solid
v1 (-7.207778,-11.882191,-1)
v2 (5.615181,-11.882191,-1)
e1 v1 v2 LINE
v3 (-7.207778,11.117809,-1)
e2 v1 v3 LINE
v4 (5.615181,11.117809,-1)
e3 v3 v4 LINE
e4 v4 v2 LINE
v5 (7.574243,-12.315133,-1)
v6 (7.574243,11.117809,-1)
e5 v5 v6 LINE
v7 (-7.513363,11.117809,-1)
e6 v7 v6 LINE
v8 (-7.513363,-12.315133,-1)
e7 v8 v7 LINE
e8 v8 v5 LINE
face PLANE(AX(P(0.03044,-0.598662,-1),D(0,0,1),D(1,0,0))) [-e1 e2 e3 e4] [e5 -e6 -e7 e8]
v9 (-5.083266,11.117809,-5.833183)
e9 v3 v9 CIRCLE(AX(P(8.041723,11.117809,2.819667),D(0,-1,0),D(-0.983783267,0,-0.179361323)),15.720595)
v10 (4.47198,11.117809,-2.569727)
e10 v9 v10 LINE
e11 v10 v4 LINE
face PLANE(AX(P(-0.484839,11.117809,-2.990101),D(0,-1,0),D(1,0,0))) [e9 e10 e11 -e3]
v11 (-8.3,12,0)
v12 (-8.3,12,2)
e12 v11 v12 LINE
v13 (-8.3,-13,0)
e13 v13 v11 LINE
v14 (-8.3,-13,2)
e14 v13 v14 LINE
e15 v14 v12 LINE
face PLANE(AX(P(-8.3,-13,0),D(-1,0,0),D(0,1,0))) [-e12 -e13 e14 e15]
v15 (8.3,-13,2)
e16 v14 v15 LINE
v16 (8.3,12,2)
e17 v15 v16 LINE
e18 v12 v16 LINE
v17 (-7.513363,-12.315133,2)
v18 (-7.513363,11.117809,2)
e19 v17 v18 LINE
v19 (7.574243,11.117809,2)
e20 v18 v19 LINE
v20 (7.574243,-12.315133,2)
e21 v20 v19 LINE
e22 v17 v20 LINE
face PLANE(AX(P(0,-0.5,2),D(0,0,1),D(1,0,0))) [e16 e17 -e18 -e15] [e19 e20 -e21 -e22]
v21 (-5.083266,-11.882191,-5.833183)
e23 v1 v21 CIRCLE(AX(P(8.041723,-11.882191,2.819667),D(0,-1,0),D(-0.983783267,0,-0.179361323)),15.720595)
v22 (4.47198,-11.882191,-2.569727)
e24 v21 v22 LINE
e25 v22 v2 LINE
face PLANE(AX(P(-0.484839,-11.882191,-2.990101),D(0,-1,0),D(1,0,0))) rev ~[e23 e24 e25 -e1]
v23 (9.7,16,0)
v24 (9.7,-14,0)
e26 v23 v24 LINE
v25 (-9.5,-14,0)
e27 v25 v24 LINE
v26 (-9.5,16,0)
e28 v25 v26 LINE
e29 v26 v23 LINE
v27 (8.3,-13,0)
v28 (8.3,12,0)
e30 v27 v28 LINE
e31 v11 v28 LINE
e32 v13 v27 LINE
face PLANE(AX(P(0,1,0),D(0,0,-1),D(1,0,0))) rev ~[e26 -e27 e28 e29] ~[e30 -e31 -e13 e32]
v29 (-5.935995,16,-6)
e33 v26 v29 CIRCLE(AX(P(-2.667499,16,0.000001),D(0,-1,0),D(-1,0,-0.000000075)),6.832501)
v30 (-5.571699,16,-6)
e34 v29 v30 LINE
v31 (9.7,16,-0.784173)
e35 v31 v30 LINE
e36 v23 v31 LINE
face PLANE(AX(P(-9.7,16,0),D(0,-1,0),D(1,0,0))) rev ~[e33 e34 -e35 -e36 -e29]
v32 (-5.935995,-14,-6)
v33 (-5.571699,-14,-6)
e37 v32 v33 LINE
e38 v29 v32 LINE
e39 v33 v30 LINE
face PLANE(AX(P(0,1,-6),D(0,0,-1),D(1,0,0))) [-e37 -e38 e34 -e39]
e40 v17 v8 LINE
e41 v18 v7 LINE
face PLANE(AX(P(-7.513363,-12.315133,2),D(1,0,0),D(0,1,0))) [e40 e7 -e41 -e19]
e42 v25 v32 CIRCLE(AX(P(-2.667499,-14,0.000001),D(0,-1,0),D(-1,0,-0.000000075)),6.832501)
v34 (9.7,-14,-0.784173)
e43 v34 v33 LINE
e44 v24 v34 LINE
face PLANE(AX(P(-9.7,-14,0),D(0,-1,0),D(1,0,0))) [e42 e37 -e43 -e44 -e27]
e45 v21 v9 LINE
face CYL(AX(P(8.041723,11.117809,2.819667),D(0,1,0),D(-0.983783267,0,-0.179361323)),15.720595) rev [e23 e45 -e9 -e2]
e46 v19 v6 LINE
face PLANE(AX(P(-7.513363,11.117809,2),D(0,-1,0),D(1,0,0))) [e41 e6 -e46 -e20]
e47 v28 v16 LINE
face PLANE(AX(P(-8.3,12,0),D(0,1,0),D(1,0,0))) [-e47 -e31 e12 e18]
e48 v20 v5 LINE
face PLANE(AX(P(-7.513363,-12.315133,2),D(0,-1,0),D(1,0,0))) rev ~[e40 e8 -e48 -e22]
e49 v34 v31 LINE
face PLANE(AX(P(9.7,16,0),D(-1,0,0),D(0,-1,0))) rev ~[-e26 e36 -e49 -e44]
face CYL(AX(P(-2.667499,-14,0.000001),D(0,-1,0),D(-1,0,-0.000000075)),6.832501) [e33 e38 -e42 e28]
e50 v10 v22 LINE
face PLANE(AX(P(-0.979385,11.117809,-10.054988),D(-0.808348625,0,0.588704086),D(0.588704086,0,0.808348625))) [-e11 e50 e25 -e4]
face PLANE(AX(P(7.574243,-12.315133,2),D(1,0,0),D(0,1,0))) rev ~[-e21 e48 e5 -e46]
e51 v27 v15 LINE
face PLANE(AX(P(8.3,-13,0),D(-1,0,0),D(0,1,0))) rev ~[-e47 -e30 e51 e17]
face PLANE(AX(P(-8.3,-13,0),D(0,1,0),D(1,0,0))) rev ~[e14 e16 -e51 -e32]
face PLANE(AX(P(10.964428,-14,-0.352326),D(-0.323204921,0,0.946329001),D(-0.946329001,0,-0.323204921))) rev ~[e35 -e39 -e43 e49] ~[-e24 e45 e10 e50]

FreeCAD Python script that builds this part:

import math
import FreeCAD as App
import Part
import Sketcher

V = App.Vector
Q = App.Units.Quantity


def add_polygon(sketch, points):
    """Adds a closed chain of lines whose ends are joined by coincident constraints."""
    first, n = sketch.GeometryCount, len(points)
    for a, b in zip(points, points[1:] + points[:1]):
        sketch.addGeometry(Part.LineSegment(App.Vector(*a, 0), App.Vector(*b, 0)), False)
    for i in range(n):
        sketch.addConstraint(Sketcher.Constraint("Coincident", first + i, 2, first + (i + 1) % n, 1))

doc = App.newDocument("Part")
body = doc.addObject("PartDesign::Body", "Body")

# Sketch on XY plane
sketch1 = body.newObject("Sketcher::SketchObject", "Sketch")
sketch1.AttachmentSupport = (doc.getObject("XY_Plane"), [""])
sketch1.MapMode = "FlatFace"
add_polygon(sketch1, [(-8.3, 12), (-8.3, -13), (8.3, -13), (8.3, 12)])  # lines 0-3
sketch1.addConstraint([
    Sketcher.Constraint("Vertical", 0),
    Sketcher.Constraint("Horizontal", 1),
    Sketcher.Constraint("Vertical", 2),
    Sketcher.Constraint("Horizontal", 3),
    Sketcher.Constraint("DistanceY", 0, 2, 0, 1, Q("25 mm")),
    Sketcher.Constraint("DistanceX", 1, 1, 1, 2, Q("16.6 mm")),
    Sketcher.Constraint("DistanceY", 0, 2, -1, 1, Q("13 mm")),
    Sketcher.Constraint("DistanceX", 0, 2, -1, 1, Q("8.3 mm")),
])
pad1 = body.newObject("PartDesign::Pad", "Pad")
pad1.Profile = sketch1
pad1.Length = 2

# Sketch on XY plane
sketch2 = body.newObject("Sketcher::SketchObject", "Sketch001")
sketch2.AttachmentSupport = (doc.getObject("XY_Plane"), [""])
sketch2.MapMode = "FlatFace"
add_polygon(sketch2, [(-9.7, -14), (-9.7, 16), (9.7, 16), (9.7, -14)])  # lines 0-3
sketch2.addConstraint([
    Sketcher.Constraint("Vertical", 0),
    Sketcher.Constraint("Horizontal", 1),
    Sketcher.Constraint("Vertical", 2),
    Sketcher.Constraint("Horizontal", 3),
    Sketcher.Constraint("DistanceY", 0, 1, 0, 2, Q("30 mm")),
    Sketcher.Constraint("DistanceX", 1, 1, 1, 2, Q("19.4 mm")),
    Sketcher.Constraint("DistanceY", -1, 1, 0, 2, Q("16 mm")),
    Sketcher.Constraint("DistanceX", 0, 2, -1, 1, Q("9.7 mm")),
])
pad2 = body.newObject("PartDesign::Pad", "Pad001")
pad2.Profile = sketch2
pad2.Length = 6
pad2.Reversed = True

# Sketch on XZ plane
sketch3 = body.newObject("Sketcher::SketchObject", "Sketch002")
sketch3.AttachmentSupport = (doc.getObject("XZ_Plane"), [""])
sketch3.MapMode = "FlatFace"
sketch3.AttachmentOffset = App.Placement(V(0, 0, 14), App.Rotation())
sketch3.addGeometry([
    Part.ArcOfCircle(Part.Circle(V(-2.667499, 0.000001, 0), V(0, 0, 1), 6.832501), math.radians(-179.999996), math.radians(-117.223895)),  # 0
    Part.LineSegment(V(-9.5, 0, 0), V(-9.5, 2.985816, 0)),  # 1
    Part.LineSegment(V(-9.5, 2.985816, 0), V(-15.284175, -12.512696, 0)),  # 2
    Part.LineSegment(V(-15.284175, -12.512696, 0), V(10.392425, -13.720259, 0)),  # 3
    Part.LineSegment(V(10.392425, -13.720259, 0), V(10.964428, -0.352326, 0)),  # 4
    Part.LineSegment(V(10.964428, -0.352326, 0), V(-5.793155, -6.075635, 0)),  # 5
], False)
sketch3.addConstraint([
    Sketcher.Constraint("Tangent", 0, 1, 1, 1),
    Sketcher.Constraint("Coincident", 1, 2, 2, 1),
    Sketcher.Constraint("Coincident", 2, 2, 3, 1),
    Sketcher.Constraint("Coincident", 3, 2, 4, 1),
    Sketcher.Constraint("Coincident", 4, 2, 5, 1),
    Sketcher.Constraint("Coincident", 5, 2, 0, 2),
    Sketcher.Constraint("Vertical", 1),
    Sketcher.Constraint("PointOnObject", 0, 3, -1),
    Sketcher.Constraint("DistanceX", 0, 1, -1, 1, Q("9.5 mm")),
    Sketcher.Constraint("Radius", 0, Q("6.832501 mm")),
    Sketcher.Constraint("DistanceX", 2, 2, 3, 2, Q("25.6766 mm")),
    Sketcher.Constraint("Distance", 2, Q("16.542689 mm")),
    Sketcher.Constraint("Distance", 3, Q("25.70498 mm")),
    Sketcher.Constraint("Distance", 5, Q("17.707988 mm")),
    Sketcher.Constraint("DistanceY", 1, 1, 1, 2, Q("2.985816 mm")),
    Sketcher.Constraint("DistanceY", 3, 2, -1, 1, Q("13.720259 mm")),
    Sketcher.Constraint("DistanceY", 4, 2, 1, 2, Q("3.338142 mm")),
    Sketcher.Constraint("DistanceY", 5, 2, 1, 2, Q("9.061451 mm")),
])
pocket1 = body.newObject("PartDesign::Pocket", "Pocket")
pocket1.Profile = sketch3
pocket1.Type = "ThroughAll"

# Sketch on XY plane
sketch4 = body.newObject("Sketcher::SketchObject", "Sketch003")
sketch4.AttachmentSupport = (doc.getObject("XY_Plane"), [""])
sketch4.MapMode = "FlatFace"
sketch4.AttachmentOffset = App.Placement(V(0, 0, 2), App.Rotation())
add_polygon(sketch4, [(-7.513363, 11.117809), (-7.513363, -12.315133), (7.574243, -12.315133), (7.574243, 11.117809)])  # lines 0-3
sketch4.addConstraint([
    Sketcher.Constraint("Vertical", 0),
    Sketcher.Constraint("Horizontal", 1),
    Sketcher.Constraint("Vertical", 2),
    Sketcher.Constraint("Horizontal", 3),
    Sketcher.Constraint("DistanceX", 1, 1, 1, 2, Q("15.087606 mm")),
    Sketcher.Constraint("DistanceY", 0, 2, 0, 1, Q("23.432943 mm")),
    Sketcher.Constraint("DistanceY", -1, 1, 2, 2, Q("11.117809 mm")),
    Sketcher.Constraint("DistanceX", 0, 2, -1, 1, Q("7.513363 mm")),
])
pocket2 = body.newObject("PartDesign::Pocket", "Pocket001")
pocket2.Profile = sketch4
pocket2.Length = 3

# Sketch on XZ plane
sketch5 = body.newObject("Sketcher::SketchObject", "Sketch004")
sketch5.AttachmentSupport = (doc.getObject("XZ_Plane"), [""])
sketch5.MapMode = "FlatFace"
sketch5.AttachmentOffset = App.Placement(V(0, 0, -11.117809), App.Rotation())
sketch5.addGeometry([
    Part.LineSegment(V(7.061974, 0.986589, 0), V(-7.423936, 0, 0)),
    Part.ArcOfCircle(Part.Circle(V(8.041723, 2.819667, 0), V(0, 0, 1), 15.720595), math.radians(-169.667439), math.radians(-125.018443)),
    Part.LineSegment(V(-0.979385, -10.054988, 0), V(7.061974, 0.986589, 0)),
], False)
sketch5.addConstraint([
    Sketcher.Constraint("Coincident", 0, 2, 1, 1),
    Sketcher.Constraint("Coincident", 1, 2, 2, 1),
    Sketcher.Constraint("Coincident", 2, 2, 0, 1),
    Sketcher.Constraint("PointOnObject", 0, 2, -1),
    Sketcher.Constraint("Radius", 1, Q("15.720595 mm")),
    Sketcher.Constraint("DistanceY", -1, 1, 2, 2, Q("0.986589 mm")),
    Sketcher.Constraint("DistanceX", 0, 2, 1, 3, Q("15.465659 mm")),
    Sketcher.Constraint("DistanceX", 0, 2, 1, 2, Q("6.444551 mm")),
    Sketcher.Constraint("DistanceX", 2, 2, 1, 3, Q("0.979749 mm")),
    Sketcher.Constraint("DistanceX", -1, 1, 1, 3, Q("8.041723 mm")),
])
pocket3 = body.newObject("PartDesign::Pocket", "Pocket002")
pocket3.Profile = sketch5
pocket3.Length = 23
pocket3.Reversed = True

doc.recompute()
